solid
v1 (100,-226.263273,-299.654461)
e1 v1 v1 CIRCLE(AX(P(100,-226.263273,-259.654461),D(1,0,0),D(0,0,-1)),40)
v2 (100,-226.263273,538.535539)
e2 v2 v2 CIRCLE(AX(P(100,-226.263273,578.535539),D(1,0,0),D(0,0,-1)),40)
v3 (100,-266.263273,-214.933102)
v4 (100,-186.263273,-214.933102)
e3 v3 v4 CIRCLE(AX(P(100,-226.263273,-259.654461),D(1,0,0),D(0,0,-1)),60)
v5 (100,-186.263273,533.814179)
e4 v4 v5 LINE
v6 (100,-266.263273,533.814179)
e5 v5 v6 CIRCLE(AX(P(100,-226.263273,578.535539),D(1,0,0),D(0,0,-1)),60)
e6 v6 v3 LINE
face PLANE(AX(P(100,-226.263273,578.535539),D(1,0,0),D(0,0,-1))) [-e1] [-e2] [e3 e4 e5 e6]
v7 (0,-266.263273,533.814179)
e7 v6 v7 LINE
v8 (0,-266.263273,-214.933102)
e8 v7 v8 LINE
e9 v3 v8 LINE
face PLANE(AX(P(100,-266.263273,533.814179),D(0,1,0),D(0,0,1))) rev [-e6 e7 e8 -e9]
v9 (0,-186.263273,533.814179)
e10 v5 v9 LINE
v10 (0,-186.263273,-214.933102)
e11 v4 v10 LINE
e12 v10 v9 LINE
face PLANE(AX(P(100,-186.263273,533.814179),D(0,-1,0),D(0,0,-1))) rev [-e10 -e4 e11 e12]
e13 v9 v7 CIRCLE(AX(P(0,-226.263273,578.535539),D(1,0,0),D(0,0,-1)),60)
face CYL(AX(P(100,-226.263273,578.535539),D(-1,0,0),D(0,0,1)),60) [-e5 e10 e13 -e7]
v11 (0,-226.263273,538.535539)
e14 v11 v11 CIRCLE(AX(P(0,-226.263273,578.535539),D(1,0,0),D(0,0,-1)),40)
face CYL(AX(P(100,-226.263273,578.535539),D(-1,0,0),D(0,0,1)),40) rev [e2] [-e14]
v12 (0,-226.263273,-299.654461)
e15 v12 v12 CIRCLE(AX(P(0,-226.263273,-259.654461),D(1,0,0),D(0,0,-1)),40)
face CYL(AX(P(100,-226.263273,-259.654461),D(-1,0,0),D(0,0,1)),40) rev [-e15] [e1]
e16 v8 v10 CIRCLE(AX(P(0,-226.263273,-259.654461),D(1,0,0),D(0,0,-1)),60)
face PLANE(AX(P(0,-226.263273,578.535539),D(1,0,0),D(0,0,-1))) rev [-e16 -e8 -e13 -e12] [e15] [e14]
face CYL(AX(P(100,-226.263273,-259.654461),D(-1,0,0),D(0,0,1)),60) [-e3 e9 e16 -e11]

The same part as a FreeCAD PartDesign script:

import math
import FreeCAD as App
import Part
import Sketcher
from FreeCAD import Vector
Q = App.Units.Quantity

doc = App.newDocument("Part")
body = doc.addObject("PartDesign::Body", "Body")

sketch1 = body.newObject("Sketcher::SketchObject", "Sketch")
sketch1.AttachmentSupport = (doc.getObject("YZ_Plane"), [""])
sketch1.MapMode = "FlatFace"
sketch1.addGeometry([
    Part.LineSegment(Vector(-186, -215, 0), Vector(-186, 534, 0)),
    Part.ArcOfCircle(Part.Circle(Vector(-226, 579, 0), Vector(0, 0, 1), 60), math.radians(-48), math.radians(228)),
    Part.LineSegment(Vector(-266, 534, 0), Vector(-266, -215, 0)),
    Part.ArcOfCircle(Part.Circle(Vector(-226, -260, 0), Vector(0, 0, 1), 60), math.radians(132), math.radians(408)),
    Part.Circle(Vector(-226, -260, 0), Vector(0, 0, 1), 40),
    Part.Circle(Vector(-226, 579, 0), Vector(0, 0, 1), 40),
], False)
sketch1.addConstraint([
    Sketcher.Constraint("Coincident", 0, 2, 1, 1),
    Sketcher.Constraint("Coincident", 1, 2, 2, 1),
    Sketcher.Constraint("Coincident", 2, 2, 3, 1),
    Sketcher.Constraint("Coincident", 3, 2, 0, 1),
    Sketcher.Constraint("Vertical", 0),
    Sketcher.Constraint("Vertical", 2),
    Sketcher.Constraint("Coincident", 4, 3, 3, 3),
    Sketcher.Constraint("Coincident", 5, 3, 1, 3),
    Sketcher.Constraint("Equal", 1, 3),
    Sketcher.Constraint("Equal", 4, 5),
    Sketcher.Constraint("Horizontal", 0, 2, 1, 2),
    Sketcher.Constraint("Horizontal", 2, 2, 3, 2),
    Sketcher.Constraint("Diameter", 4, Q("80 mm")),
    Sketcher.Constraint("Radius", 1, Q("60 mm")),
    Sketcher.Constraint("DistanceX", 1, 3, 0, 2, Q("40 mm")),
    Sketcher.Constraint("DistanceY", 3, 3, 1, 3, Q("838.19 mm")),
    Sketcher.Constraint("DistanceY", 2, 2, -1, 1, Q("214.933102 mm")),
    Sketcher.Constraint("DistanceX", 1, 3, -1, 1, Q("226.263273 mm")),
])
pad1 = body.newObject("PartDesign::Pad", "Pad")
pad1.Profile = sketch1
pad1.Length = 100

doc.recompute()
